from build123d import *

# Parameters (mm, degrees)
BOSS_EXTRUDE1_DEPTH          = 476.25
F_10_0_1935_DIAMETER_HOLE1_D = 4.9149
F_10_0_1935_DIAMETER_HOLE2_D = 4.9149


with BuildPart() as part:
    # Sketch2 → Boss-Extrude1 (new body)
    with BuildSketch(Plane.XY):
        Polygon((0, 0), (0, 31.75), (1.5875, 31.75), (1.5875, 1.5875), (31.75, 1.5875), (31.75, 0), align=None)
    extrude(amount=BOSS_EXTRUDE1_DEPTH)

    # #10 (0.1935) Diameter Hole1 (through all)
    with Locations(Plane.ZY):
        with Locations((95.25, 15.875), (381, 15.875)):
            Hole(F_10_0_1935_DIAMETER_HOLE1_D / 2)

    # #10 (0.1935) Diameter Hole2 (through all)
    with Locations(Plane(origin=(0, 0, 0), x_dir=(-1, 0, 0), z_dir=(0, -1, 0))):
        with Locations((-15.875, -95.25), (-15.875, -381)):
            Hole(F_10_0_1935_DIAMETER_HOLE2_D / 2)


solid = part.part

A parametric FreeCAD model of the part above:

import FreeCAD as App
import Part
import Sketcher

V = App.Vector
Q = App.Units.Quantity

doc = App.newDocument("Part")
body = doc.addObject("PartDesign::Body", "Body")

# Sketch on XY plane
sketch1 = body.newObject("Sketcher::SketchObject", "Sketch")
sketch1.AttachmentSupport = (doc.getObject("XY_Plane"), [""])
sketch1.MapMode = "FlatFace"
sketch1.addGeometry(Part.LineSegment(V(0, 31.8, 0), V(0, 0, 0)), False)
sketch1.addGeometry(Part.LineSegment(V(0, 0, 0), V(31.8, 0, 0)), False)
sketch1.addGeometry(Part.LineSegment(V(31.8, 0, 0), V(31.8, 1.6, 0)), False)
sketch1.addGeometry(Part.LineSegment(V(31.8, 1.6, 0), V(1.6, 1.6, 0)), False)
sketch1.addGeometry(Part.LineSegment(V(1.6, 1.6, 0), V(1.6, 31.8, 0)), False)
sketch1.addGeometry(Part.LineSegment(V(1.6, 31.8, 0), V(0, 31.8, 0)), False)
sketch1.addConstraint(Sketcher.Constraint("Coincident", 0, 2, 1, 1))
sketch1.addConstraint(Sketcher.Constraint("Coincident", 1, 2, 2, 1))
sketch1.addConstraint(Sketcher.Constraint("Coincident", 2, 2, 3, 1))
sketch1.addConstraint(Sketcher.Constraint("Coincident", 3, 2, 4, 1))
sketch1.addConstraint(Sketcher.Constraint("Coincident", 4, 2, 5, 1))
sketch1.addConstraint(Sketcher.Constraint("Coincident", 5, 2, 0, 1))
sketch1.addConstraint(Sketcher.Constraint("Vertical", 0))
sketch1.addConstraint(Sketcher.Constraint("Horizontal", 1))
sketch1.addConstraint(Sketcher.Constraint("Vertical", 2))
sketch1.addConstraint(Sketcher.Constraint("Horizontal", 3))
sketch1.addConstraint(Sketcher.Constraint("Vertical", 4))
sketch1.addConstraint(Sketcher.Constraint("Horizontal", 5))
sketch1.addConstraint(Sketcher.Constraint("Coincident", 0, 2, -1, 1))
sketch1.addConstraint(Sketcher.Constraint("Equal", 1, 0))
sketch1.addConstraint(Sketcher.Constraint("Equal", 5, 2))
sketch1.addConstraint(Sketcher.Constraint("DistanceX", 1, 1, 1, 2, Q("1.25 in")))
sketch1.addConstraint(Sketcher.Constraint("DistanceX", 3, 2, 3, 1, Q("1.1875 in")))
pad1 = body.newObject("PartDesign::Pad", "Pad")
pad1.Profile = sketch1
pad1.Length = Q("18.75 in")

# Sketch on YZ plane
sketch2 = body.newObject("Sketcher::SketchObject", "Sketch001")
sketch2.AttachmentSupport = (doc.getObject("YZ_Plane"), [""])
sketch2.MapMode = "FlatFace"
sketch2.addGeometry(Part.Circle(V(15.9, 95.2, 0), V(0, 0, 1), 2.5), False)
sketch2.addGeometry(Part.Circle(V(15.9, 381, 0), V(0, 0, 1), 2.5), False)
sketch2.addConstraint(Sketcher.Constraint("Equal", 0, 1))
sketch2.addConstraint(Sketcher.Constraint("Vertical", 0, 3, 1, 3))
sketch2.addConstraint(Sketcher.Constraint("DistanceY", -1, 1, 1, 3, Q("15 in")))
sketch2.addConstraint(Sketcher.Constraint("Diameter", 0, Q("0.1935 in")))
sketch2.addConstraint(Sketcher.Constraint("DistanceY", -1, 1, 0, 3, Q("3.75 in")))
sketch2.addConstraint(Sketcher.Constraint("DistanceX", -1, 1, 0, 3, Q("0.625 in")))
doc.recompute()
hole = body.newObject("PartDesign::Hole", "Hole")
hole.Profile = sketch2
hole.ThreadType = "None"
hole.Diameter = Q("0.1935 in")
hole.DepthType = "ThroughAll"
hole.Reversed = True

# Sketch on XZ plane
sketch3 = body.newObject("Sketcher::SketchObject", "Sketch002")
sketch3.AttachmentSupport = (doc.getObject("XZ_Plane"), [""])
sketch3.MapMode = "FlatFace"
sketch3.addGeometry(Part.Circle(V(15.9, 95.2, 0), V(0, 0, 1), 2.5), False)
sketch3.addGeometry(Part.Circle(V(15.9, 381, 0), V(0, 0, 1), 2.5), False)
sketch3.addConstraint(Sketcher.Constraint("Equal", 0, 1))
sketch3.addConstraint(Sketcher.Constraint("Vertical", 0, 3, 1, 3))
sketch3.addConstraint(Sketcher.Constraint("DistanceY", -1, 1, 1, 3, Q("15 in")))
sketch3.addConstraint(Sketcher.Constraint("Diameter", 0, Q("0.1935 in")))
sketch3.addConstraint(Sketcher.Constraint("DistanceY", -1, 1, 0, 3, Q("3.75 in")))
sketch3.addConstraint(Sketcher.Constraint("DistanceX", -1, 1, 0, 3, Q("0.625 in")))
doc.recompute()
hole2 = body.newObject("PartDesign::Hole", "Hole001")
hole2.Profile = sketch3
hole2.ThreadType = "None"
hole2.Diameter = Q("0.1935 in")
hole2.DepthType = "ThroughAll"

doc.recompute()
